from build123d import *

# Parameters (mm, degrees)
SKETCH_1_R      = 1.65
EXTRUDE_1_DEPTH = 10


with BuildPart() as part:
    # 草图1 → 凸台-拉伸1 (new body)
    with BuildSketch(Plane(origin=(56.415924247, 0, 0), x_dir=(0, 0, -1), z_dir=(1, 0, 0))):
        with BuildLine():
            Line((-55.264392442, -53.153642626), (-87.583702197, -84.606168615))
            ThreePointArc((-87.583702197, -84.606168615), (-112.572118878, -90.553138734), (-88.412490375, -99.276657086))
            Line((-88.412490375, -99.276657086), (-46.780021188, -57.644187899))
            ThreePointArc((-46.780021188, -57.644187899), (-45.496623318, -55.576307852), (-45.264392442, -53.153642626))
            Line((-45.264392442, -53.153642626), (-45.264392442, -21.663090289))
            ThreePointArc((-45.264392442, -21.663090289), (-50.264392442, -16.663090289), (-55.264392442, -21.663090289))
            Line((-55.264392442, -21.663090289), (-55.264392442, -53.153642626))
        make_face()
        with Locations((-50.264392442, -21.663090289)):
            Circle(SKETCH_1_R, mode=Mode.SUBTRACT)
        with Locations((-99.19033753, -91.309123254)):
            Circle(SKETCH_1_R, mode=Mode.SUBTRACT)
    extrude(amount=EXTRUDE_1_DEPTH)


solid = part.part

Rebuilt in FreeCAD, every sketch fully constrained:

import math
import FreeCAD as App
import Part
import Sketcher
Q = App.Units.Quantity

doc = App.newDocument("Part")
body = doc.addObject("PartDesign::Body", "Body")

sketch1 = body.newObject("Sketcher::SketchObject", "Sketch")
sketch1.AttachmentSupport = (doc.getObject("YZ_Plane"), [""])
sketch1.MapMode = "FlatFace"
sketch1.AttachmentOffset = App.Placement(App.Vector(0, 0, 56.415924), App.Rotation())
sketch1.addGeometry(Part.LineSegment(App.Vector(-53.2, 55.3, 0), App.Vector(-84.6, 87.6, 0)), False)
sketch1.addGeometry(Part.ArcOfCircle(Part.Circle(App.Vector(-91.3, 99.2, 0), App.Vector(0, 0, 1), 13.4), math.radians(-60), math.radians(234)), False)
sketch1.addGeometry(Part.LineSegment(App.Vector(-99.3, 88.4, 0), App.Vector(-57.6, 46.8, 0)), False)
sketch1.addGeometry(Part.ArcOfCircle(Part.Circle(App.Vector(-53.9, 50.6, 0), App.Vector(0, 0, 1), 5.3), math.radians(-135), math.radians(-82)), False)
sketch1.addGeometry(Part.LineSegment(App.Vector(-53.2, 45.3, 0), App.Vector(-21.7, 45.3, 0)), False)
sketch1.addGeometry(Part.ArcOfCircle(Part.Circle(App.Vector(-21.7, 50.3, 0), App.Vector(0, 0, 1), 5), math.radians(-90), math.radians(90)), False)
sketch1.addGeometry(Part.LineSegment(App.Vector(-21.7, 55.3, 0), App.Vector(-53.2, 55.3, 0)), False)
sketch1.addGeometry(Part.Circle(App.Vector(-91.3, 99.2, 0), App.Vector(0, 0, 1), 1.6), False)
sketch1.addGeometry(Part.Circle(App.Vector(-21.7, 50.3, 0), App.Vector(0, 0, 1), 1.6), False)
sketch1.addConstraint(Sketcher.Constraint("Coincident", 0, 2, 1, 1))
sketch1.addConstraint(Sketcher.Constraint("Coincident", 1, 2, 2, 1))
sketch1.addConstraint(Sketcher.Constraint("Tangent", 2, 2, 3, 1))
sketch1.addConstraint(Sketcher.Constraint("Coincident", 3, 2, 4, 1))
sketch1.addConstraint(Sketcher.Constraint("Tangent", 4, 2, 5, 1))
sketch1.addConstraint(Sketcher.Constraint("Tangent", 5, 2, 6, 1))
sketch1.addConstraint(Sketcher.Constraint("Coincident", 6, 2, 0, 1))
sketch1.addConstraint(Sketcher.Constraint("Horizontal", 4))
sketch1.addConstraint(Sketcher.Constraint("Horizontal", 6))
sketch1.addConstraint(Sketcher.Constraint("Coincident", 7, 3, 1, 3))
sketch1.addConstraint(Sketcher.Constraint("Coincident", 8, 3, 5, 3))
sketch1.addConstraint(Sketcher.Constraint("Equal", 7, 8))
sketch1.addConstraint(Sketcher.Constraint("Vertical", 3, 2, 6, 2))
sketch1.addConstraint(Sketcher.Constraint("Radius", 5, Q("5 mm")))
sketch1.addConstraint(Sketcher.Constraint("Diameter", 7, Q("3.3 mm")))
sketch1.addConstraint(Sketcher.Constraint("Angle", 2, Q("-45 deg")))
sketch1.addConstraint(Sketcher.Constraint("Radius", 1, Q("13.403118 mm")))
sketch1.addConstraint(Sketcher.Constraint("Radius", 3, Q("5.339015 mm")))
sketch1.addConstraint(Sketcher.Constraint("DistanceX", 4, 1, 4, 2, Q("31.490552 mm")))
sketch1.addConstraint(Sketcher.Constraint("DistanceX", 5, 3, -1, 1, Q("21.66309 mm")))
sketch1.addConstraint(Sketcher.Constraint("DistanceX", 0, 2, -1, 1, Q("84.606169 mm")))
sketch1.addConstraint(Sketcher.Constraint("DistanceY", -1, 1, 1, 2, Q("88.41249 mm")))
sketch1.addConstraint(Sketcher.Constraint("DistanceY", -1, 1, 2, 2, Q("46.780021 mm")))
sketch1.addConstraint(Sketcher.Constraint("DistanceX", 1, 3, 3, 3, Q("37.440189 mm")))
sketch1.addConstraint(Sketcher.Constraint("DistanceY", 5, 3, 0, 2, Q("37.31931 mm")))
pad1 = body.newObject("PartDesign::Pad", "Pad")
pad1.Profile = sketch1
pad1.Length = 10

doc.recompute()
